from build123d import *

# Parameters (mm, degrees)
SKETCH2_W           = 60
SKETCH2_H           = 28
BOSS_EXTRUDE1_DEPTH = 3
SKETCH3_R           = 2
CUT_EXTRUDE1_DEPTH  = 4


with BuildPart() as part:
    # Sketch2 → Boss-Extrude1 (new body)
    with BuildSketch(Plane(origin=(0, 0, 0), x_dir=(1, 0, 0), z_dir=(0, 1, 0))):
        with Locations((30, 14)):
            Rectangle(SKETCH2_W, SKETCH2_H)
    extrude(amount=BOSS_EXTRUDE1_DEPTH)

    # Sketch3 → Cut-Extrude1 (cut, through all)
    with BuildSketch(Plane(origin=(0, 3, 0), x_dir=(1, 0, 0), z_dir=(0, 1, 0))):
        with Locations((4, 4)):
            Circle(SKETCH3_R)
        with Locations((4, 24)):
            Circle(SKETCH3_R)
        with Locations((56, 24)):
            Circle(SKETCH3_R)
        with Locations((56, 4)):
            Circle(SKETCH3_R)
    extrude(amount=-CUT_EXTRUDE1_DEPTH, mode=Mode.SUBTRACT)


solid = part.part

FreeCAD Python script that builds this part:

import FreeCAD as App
import Part
import Sketcher
from FreeCAD import Vector


def add_polygon(sketch, points):
    """Adds a closed chain of lines whose ends are joined by coincident constraints."""
    first, n = sketch.GeometryCount, len(points)
    for a, b in zip(points, points[1:] + points[:1]):
        sketch.addGeometry(Part.LineSegment(App.Vector(*a, 0), App.Vector(*b, 0)), False)
    for i in range(n):
        sketch.addConstraint(Sketcher.Constraint("Coincident", first + i, 2, first + (i + 1) % n, 1))

doc = App.newDocument("Part")
params = doc.addObject("Spreadsheet::Sheet", "Params")
for row, (alias, value) in enumerate([
    ("sketch1_width", "60 mm"),
    ("sketch1_height", "28 mm"),
    ("pad1_length", "3 mm"),
    ("sketch2_diameter", "4 mm"),
], start=1):
    params.set(f"A{row}", alias)
    params.set(f"B{row}", "=" + value)
    params.setAlias(f"B{row}", alias)

body = doc.addObject("PartDesign::Body", "Body")

# Sketch on XZ plane
sketch1 = body.newObject("Sketcher::SketchObject", "Sketch")
sketch1.AttachmentSupport = (doc.getObject("XZ_Plane"), [""])
sketch1.MapMode = "FlatFace"
add_polygon(sketch1, [(0, -28), (0, 0), (60, 0), (60, -28)])  # lines 0-3
sketch1.addConstraint([
    Sketcher.Constraint("Vertical", 0),
    Sketcher.Constraint("Horizontal", 1),
    Sketcher.Constraint("Vertical", 2),
    Sketcher.Constraint("Horizontal", 3),
    Sketcher.Constraint("Coincident", 0, 2, -1, 1),
    Sketcher.Constraint("DistanceX", 1, 1, 1, 2, 60.0),
    Sketcher.Constraint("DistanceY", 0, 1, 0, 2, 28.0),
])
sketch1.setExpression("Constraints[9]", "Params.sketch1_width")
sketch1.setExpression("Constraints[10]", "Params.sketch1_height")
pad1 = body.newObject("PartDesign::Pad", "Pad")
pad1.Profile = sketch1
pad1.setExpression("Length", "Params.pad1_length")
pad1.Reversed = True

# Sketch on XZ plane
sketch2 = body.newObject("Sketcher::SketchObject", "Sketch001")
sketch2.AttachmentSupport = (doc.getObject("XZ_Plane"), [""])
sketch2.MapMode = "FlatFace"
sketch2.AttachmentOffset = App.Placement(Vector(0, 0, -3), App.Rotation())
sketch2.addGeometry([
    Part.Circle(Vector(4, -4, 0), Vector(0, 0, 1), 2),
    Part.Circle(Vector(4, -24, 0), Vector(0, 0, 1), 2),
    Part.Circle(Vector(56, -24, 0), Vector(0, 0, 1), 2),
    Part.Circle(Vector(56, -4, 0), Vector(0, 0, 1), 2),
], False)
sketch2.addConstraint([
    Sketcher.Constraint("Equal", 0, 1),
    Sketcher.Constraint("Equal", 1, 2),
    Sketcher.Constraint("Equal", 2, 3),
    Sketcher.Constraint("Horizontal", 1, 3, 2, 3),
    Sketcher.Constraint("Horizontal", 0, 3, 3, 3),
    Sketcher.Constraint("Vertical", 0, 3, 1, 3),
    Sketcher.Constraint("Vertical", 2, 3, 3, 3),
    Sketcher.Constraint("Diameter", 0, 4.0),
    Sketcher.Constraint("DistanceX", -1, 1, 0, 3, 4.0),
    Sketcher.Constraint("DistanceY", 0, 3, -1, 1, 4.0),
    Sketcher.Constraint("DistanceY", 1, 3, -1, 1, 24.0),
    Sketcher.Constraint("DistanceX", -1, 1, 2, 3, 56.0),
])
sketch2.setExpression("Constraints[7]", "Params.sketch2_diameter")
pocket1 = body.newObject("PartDesign::Pocket", "Pocket")
pocket1.Profile = sketch2
pocket1.Type = "ThroughAll"
pocket1.Reversed = True

doc.recompute()
